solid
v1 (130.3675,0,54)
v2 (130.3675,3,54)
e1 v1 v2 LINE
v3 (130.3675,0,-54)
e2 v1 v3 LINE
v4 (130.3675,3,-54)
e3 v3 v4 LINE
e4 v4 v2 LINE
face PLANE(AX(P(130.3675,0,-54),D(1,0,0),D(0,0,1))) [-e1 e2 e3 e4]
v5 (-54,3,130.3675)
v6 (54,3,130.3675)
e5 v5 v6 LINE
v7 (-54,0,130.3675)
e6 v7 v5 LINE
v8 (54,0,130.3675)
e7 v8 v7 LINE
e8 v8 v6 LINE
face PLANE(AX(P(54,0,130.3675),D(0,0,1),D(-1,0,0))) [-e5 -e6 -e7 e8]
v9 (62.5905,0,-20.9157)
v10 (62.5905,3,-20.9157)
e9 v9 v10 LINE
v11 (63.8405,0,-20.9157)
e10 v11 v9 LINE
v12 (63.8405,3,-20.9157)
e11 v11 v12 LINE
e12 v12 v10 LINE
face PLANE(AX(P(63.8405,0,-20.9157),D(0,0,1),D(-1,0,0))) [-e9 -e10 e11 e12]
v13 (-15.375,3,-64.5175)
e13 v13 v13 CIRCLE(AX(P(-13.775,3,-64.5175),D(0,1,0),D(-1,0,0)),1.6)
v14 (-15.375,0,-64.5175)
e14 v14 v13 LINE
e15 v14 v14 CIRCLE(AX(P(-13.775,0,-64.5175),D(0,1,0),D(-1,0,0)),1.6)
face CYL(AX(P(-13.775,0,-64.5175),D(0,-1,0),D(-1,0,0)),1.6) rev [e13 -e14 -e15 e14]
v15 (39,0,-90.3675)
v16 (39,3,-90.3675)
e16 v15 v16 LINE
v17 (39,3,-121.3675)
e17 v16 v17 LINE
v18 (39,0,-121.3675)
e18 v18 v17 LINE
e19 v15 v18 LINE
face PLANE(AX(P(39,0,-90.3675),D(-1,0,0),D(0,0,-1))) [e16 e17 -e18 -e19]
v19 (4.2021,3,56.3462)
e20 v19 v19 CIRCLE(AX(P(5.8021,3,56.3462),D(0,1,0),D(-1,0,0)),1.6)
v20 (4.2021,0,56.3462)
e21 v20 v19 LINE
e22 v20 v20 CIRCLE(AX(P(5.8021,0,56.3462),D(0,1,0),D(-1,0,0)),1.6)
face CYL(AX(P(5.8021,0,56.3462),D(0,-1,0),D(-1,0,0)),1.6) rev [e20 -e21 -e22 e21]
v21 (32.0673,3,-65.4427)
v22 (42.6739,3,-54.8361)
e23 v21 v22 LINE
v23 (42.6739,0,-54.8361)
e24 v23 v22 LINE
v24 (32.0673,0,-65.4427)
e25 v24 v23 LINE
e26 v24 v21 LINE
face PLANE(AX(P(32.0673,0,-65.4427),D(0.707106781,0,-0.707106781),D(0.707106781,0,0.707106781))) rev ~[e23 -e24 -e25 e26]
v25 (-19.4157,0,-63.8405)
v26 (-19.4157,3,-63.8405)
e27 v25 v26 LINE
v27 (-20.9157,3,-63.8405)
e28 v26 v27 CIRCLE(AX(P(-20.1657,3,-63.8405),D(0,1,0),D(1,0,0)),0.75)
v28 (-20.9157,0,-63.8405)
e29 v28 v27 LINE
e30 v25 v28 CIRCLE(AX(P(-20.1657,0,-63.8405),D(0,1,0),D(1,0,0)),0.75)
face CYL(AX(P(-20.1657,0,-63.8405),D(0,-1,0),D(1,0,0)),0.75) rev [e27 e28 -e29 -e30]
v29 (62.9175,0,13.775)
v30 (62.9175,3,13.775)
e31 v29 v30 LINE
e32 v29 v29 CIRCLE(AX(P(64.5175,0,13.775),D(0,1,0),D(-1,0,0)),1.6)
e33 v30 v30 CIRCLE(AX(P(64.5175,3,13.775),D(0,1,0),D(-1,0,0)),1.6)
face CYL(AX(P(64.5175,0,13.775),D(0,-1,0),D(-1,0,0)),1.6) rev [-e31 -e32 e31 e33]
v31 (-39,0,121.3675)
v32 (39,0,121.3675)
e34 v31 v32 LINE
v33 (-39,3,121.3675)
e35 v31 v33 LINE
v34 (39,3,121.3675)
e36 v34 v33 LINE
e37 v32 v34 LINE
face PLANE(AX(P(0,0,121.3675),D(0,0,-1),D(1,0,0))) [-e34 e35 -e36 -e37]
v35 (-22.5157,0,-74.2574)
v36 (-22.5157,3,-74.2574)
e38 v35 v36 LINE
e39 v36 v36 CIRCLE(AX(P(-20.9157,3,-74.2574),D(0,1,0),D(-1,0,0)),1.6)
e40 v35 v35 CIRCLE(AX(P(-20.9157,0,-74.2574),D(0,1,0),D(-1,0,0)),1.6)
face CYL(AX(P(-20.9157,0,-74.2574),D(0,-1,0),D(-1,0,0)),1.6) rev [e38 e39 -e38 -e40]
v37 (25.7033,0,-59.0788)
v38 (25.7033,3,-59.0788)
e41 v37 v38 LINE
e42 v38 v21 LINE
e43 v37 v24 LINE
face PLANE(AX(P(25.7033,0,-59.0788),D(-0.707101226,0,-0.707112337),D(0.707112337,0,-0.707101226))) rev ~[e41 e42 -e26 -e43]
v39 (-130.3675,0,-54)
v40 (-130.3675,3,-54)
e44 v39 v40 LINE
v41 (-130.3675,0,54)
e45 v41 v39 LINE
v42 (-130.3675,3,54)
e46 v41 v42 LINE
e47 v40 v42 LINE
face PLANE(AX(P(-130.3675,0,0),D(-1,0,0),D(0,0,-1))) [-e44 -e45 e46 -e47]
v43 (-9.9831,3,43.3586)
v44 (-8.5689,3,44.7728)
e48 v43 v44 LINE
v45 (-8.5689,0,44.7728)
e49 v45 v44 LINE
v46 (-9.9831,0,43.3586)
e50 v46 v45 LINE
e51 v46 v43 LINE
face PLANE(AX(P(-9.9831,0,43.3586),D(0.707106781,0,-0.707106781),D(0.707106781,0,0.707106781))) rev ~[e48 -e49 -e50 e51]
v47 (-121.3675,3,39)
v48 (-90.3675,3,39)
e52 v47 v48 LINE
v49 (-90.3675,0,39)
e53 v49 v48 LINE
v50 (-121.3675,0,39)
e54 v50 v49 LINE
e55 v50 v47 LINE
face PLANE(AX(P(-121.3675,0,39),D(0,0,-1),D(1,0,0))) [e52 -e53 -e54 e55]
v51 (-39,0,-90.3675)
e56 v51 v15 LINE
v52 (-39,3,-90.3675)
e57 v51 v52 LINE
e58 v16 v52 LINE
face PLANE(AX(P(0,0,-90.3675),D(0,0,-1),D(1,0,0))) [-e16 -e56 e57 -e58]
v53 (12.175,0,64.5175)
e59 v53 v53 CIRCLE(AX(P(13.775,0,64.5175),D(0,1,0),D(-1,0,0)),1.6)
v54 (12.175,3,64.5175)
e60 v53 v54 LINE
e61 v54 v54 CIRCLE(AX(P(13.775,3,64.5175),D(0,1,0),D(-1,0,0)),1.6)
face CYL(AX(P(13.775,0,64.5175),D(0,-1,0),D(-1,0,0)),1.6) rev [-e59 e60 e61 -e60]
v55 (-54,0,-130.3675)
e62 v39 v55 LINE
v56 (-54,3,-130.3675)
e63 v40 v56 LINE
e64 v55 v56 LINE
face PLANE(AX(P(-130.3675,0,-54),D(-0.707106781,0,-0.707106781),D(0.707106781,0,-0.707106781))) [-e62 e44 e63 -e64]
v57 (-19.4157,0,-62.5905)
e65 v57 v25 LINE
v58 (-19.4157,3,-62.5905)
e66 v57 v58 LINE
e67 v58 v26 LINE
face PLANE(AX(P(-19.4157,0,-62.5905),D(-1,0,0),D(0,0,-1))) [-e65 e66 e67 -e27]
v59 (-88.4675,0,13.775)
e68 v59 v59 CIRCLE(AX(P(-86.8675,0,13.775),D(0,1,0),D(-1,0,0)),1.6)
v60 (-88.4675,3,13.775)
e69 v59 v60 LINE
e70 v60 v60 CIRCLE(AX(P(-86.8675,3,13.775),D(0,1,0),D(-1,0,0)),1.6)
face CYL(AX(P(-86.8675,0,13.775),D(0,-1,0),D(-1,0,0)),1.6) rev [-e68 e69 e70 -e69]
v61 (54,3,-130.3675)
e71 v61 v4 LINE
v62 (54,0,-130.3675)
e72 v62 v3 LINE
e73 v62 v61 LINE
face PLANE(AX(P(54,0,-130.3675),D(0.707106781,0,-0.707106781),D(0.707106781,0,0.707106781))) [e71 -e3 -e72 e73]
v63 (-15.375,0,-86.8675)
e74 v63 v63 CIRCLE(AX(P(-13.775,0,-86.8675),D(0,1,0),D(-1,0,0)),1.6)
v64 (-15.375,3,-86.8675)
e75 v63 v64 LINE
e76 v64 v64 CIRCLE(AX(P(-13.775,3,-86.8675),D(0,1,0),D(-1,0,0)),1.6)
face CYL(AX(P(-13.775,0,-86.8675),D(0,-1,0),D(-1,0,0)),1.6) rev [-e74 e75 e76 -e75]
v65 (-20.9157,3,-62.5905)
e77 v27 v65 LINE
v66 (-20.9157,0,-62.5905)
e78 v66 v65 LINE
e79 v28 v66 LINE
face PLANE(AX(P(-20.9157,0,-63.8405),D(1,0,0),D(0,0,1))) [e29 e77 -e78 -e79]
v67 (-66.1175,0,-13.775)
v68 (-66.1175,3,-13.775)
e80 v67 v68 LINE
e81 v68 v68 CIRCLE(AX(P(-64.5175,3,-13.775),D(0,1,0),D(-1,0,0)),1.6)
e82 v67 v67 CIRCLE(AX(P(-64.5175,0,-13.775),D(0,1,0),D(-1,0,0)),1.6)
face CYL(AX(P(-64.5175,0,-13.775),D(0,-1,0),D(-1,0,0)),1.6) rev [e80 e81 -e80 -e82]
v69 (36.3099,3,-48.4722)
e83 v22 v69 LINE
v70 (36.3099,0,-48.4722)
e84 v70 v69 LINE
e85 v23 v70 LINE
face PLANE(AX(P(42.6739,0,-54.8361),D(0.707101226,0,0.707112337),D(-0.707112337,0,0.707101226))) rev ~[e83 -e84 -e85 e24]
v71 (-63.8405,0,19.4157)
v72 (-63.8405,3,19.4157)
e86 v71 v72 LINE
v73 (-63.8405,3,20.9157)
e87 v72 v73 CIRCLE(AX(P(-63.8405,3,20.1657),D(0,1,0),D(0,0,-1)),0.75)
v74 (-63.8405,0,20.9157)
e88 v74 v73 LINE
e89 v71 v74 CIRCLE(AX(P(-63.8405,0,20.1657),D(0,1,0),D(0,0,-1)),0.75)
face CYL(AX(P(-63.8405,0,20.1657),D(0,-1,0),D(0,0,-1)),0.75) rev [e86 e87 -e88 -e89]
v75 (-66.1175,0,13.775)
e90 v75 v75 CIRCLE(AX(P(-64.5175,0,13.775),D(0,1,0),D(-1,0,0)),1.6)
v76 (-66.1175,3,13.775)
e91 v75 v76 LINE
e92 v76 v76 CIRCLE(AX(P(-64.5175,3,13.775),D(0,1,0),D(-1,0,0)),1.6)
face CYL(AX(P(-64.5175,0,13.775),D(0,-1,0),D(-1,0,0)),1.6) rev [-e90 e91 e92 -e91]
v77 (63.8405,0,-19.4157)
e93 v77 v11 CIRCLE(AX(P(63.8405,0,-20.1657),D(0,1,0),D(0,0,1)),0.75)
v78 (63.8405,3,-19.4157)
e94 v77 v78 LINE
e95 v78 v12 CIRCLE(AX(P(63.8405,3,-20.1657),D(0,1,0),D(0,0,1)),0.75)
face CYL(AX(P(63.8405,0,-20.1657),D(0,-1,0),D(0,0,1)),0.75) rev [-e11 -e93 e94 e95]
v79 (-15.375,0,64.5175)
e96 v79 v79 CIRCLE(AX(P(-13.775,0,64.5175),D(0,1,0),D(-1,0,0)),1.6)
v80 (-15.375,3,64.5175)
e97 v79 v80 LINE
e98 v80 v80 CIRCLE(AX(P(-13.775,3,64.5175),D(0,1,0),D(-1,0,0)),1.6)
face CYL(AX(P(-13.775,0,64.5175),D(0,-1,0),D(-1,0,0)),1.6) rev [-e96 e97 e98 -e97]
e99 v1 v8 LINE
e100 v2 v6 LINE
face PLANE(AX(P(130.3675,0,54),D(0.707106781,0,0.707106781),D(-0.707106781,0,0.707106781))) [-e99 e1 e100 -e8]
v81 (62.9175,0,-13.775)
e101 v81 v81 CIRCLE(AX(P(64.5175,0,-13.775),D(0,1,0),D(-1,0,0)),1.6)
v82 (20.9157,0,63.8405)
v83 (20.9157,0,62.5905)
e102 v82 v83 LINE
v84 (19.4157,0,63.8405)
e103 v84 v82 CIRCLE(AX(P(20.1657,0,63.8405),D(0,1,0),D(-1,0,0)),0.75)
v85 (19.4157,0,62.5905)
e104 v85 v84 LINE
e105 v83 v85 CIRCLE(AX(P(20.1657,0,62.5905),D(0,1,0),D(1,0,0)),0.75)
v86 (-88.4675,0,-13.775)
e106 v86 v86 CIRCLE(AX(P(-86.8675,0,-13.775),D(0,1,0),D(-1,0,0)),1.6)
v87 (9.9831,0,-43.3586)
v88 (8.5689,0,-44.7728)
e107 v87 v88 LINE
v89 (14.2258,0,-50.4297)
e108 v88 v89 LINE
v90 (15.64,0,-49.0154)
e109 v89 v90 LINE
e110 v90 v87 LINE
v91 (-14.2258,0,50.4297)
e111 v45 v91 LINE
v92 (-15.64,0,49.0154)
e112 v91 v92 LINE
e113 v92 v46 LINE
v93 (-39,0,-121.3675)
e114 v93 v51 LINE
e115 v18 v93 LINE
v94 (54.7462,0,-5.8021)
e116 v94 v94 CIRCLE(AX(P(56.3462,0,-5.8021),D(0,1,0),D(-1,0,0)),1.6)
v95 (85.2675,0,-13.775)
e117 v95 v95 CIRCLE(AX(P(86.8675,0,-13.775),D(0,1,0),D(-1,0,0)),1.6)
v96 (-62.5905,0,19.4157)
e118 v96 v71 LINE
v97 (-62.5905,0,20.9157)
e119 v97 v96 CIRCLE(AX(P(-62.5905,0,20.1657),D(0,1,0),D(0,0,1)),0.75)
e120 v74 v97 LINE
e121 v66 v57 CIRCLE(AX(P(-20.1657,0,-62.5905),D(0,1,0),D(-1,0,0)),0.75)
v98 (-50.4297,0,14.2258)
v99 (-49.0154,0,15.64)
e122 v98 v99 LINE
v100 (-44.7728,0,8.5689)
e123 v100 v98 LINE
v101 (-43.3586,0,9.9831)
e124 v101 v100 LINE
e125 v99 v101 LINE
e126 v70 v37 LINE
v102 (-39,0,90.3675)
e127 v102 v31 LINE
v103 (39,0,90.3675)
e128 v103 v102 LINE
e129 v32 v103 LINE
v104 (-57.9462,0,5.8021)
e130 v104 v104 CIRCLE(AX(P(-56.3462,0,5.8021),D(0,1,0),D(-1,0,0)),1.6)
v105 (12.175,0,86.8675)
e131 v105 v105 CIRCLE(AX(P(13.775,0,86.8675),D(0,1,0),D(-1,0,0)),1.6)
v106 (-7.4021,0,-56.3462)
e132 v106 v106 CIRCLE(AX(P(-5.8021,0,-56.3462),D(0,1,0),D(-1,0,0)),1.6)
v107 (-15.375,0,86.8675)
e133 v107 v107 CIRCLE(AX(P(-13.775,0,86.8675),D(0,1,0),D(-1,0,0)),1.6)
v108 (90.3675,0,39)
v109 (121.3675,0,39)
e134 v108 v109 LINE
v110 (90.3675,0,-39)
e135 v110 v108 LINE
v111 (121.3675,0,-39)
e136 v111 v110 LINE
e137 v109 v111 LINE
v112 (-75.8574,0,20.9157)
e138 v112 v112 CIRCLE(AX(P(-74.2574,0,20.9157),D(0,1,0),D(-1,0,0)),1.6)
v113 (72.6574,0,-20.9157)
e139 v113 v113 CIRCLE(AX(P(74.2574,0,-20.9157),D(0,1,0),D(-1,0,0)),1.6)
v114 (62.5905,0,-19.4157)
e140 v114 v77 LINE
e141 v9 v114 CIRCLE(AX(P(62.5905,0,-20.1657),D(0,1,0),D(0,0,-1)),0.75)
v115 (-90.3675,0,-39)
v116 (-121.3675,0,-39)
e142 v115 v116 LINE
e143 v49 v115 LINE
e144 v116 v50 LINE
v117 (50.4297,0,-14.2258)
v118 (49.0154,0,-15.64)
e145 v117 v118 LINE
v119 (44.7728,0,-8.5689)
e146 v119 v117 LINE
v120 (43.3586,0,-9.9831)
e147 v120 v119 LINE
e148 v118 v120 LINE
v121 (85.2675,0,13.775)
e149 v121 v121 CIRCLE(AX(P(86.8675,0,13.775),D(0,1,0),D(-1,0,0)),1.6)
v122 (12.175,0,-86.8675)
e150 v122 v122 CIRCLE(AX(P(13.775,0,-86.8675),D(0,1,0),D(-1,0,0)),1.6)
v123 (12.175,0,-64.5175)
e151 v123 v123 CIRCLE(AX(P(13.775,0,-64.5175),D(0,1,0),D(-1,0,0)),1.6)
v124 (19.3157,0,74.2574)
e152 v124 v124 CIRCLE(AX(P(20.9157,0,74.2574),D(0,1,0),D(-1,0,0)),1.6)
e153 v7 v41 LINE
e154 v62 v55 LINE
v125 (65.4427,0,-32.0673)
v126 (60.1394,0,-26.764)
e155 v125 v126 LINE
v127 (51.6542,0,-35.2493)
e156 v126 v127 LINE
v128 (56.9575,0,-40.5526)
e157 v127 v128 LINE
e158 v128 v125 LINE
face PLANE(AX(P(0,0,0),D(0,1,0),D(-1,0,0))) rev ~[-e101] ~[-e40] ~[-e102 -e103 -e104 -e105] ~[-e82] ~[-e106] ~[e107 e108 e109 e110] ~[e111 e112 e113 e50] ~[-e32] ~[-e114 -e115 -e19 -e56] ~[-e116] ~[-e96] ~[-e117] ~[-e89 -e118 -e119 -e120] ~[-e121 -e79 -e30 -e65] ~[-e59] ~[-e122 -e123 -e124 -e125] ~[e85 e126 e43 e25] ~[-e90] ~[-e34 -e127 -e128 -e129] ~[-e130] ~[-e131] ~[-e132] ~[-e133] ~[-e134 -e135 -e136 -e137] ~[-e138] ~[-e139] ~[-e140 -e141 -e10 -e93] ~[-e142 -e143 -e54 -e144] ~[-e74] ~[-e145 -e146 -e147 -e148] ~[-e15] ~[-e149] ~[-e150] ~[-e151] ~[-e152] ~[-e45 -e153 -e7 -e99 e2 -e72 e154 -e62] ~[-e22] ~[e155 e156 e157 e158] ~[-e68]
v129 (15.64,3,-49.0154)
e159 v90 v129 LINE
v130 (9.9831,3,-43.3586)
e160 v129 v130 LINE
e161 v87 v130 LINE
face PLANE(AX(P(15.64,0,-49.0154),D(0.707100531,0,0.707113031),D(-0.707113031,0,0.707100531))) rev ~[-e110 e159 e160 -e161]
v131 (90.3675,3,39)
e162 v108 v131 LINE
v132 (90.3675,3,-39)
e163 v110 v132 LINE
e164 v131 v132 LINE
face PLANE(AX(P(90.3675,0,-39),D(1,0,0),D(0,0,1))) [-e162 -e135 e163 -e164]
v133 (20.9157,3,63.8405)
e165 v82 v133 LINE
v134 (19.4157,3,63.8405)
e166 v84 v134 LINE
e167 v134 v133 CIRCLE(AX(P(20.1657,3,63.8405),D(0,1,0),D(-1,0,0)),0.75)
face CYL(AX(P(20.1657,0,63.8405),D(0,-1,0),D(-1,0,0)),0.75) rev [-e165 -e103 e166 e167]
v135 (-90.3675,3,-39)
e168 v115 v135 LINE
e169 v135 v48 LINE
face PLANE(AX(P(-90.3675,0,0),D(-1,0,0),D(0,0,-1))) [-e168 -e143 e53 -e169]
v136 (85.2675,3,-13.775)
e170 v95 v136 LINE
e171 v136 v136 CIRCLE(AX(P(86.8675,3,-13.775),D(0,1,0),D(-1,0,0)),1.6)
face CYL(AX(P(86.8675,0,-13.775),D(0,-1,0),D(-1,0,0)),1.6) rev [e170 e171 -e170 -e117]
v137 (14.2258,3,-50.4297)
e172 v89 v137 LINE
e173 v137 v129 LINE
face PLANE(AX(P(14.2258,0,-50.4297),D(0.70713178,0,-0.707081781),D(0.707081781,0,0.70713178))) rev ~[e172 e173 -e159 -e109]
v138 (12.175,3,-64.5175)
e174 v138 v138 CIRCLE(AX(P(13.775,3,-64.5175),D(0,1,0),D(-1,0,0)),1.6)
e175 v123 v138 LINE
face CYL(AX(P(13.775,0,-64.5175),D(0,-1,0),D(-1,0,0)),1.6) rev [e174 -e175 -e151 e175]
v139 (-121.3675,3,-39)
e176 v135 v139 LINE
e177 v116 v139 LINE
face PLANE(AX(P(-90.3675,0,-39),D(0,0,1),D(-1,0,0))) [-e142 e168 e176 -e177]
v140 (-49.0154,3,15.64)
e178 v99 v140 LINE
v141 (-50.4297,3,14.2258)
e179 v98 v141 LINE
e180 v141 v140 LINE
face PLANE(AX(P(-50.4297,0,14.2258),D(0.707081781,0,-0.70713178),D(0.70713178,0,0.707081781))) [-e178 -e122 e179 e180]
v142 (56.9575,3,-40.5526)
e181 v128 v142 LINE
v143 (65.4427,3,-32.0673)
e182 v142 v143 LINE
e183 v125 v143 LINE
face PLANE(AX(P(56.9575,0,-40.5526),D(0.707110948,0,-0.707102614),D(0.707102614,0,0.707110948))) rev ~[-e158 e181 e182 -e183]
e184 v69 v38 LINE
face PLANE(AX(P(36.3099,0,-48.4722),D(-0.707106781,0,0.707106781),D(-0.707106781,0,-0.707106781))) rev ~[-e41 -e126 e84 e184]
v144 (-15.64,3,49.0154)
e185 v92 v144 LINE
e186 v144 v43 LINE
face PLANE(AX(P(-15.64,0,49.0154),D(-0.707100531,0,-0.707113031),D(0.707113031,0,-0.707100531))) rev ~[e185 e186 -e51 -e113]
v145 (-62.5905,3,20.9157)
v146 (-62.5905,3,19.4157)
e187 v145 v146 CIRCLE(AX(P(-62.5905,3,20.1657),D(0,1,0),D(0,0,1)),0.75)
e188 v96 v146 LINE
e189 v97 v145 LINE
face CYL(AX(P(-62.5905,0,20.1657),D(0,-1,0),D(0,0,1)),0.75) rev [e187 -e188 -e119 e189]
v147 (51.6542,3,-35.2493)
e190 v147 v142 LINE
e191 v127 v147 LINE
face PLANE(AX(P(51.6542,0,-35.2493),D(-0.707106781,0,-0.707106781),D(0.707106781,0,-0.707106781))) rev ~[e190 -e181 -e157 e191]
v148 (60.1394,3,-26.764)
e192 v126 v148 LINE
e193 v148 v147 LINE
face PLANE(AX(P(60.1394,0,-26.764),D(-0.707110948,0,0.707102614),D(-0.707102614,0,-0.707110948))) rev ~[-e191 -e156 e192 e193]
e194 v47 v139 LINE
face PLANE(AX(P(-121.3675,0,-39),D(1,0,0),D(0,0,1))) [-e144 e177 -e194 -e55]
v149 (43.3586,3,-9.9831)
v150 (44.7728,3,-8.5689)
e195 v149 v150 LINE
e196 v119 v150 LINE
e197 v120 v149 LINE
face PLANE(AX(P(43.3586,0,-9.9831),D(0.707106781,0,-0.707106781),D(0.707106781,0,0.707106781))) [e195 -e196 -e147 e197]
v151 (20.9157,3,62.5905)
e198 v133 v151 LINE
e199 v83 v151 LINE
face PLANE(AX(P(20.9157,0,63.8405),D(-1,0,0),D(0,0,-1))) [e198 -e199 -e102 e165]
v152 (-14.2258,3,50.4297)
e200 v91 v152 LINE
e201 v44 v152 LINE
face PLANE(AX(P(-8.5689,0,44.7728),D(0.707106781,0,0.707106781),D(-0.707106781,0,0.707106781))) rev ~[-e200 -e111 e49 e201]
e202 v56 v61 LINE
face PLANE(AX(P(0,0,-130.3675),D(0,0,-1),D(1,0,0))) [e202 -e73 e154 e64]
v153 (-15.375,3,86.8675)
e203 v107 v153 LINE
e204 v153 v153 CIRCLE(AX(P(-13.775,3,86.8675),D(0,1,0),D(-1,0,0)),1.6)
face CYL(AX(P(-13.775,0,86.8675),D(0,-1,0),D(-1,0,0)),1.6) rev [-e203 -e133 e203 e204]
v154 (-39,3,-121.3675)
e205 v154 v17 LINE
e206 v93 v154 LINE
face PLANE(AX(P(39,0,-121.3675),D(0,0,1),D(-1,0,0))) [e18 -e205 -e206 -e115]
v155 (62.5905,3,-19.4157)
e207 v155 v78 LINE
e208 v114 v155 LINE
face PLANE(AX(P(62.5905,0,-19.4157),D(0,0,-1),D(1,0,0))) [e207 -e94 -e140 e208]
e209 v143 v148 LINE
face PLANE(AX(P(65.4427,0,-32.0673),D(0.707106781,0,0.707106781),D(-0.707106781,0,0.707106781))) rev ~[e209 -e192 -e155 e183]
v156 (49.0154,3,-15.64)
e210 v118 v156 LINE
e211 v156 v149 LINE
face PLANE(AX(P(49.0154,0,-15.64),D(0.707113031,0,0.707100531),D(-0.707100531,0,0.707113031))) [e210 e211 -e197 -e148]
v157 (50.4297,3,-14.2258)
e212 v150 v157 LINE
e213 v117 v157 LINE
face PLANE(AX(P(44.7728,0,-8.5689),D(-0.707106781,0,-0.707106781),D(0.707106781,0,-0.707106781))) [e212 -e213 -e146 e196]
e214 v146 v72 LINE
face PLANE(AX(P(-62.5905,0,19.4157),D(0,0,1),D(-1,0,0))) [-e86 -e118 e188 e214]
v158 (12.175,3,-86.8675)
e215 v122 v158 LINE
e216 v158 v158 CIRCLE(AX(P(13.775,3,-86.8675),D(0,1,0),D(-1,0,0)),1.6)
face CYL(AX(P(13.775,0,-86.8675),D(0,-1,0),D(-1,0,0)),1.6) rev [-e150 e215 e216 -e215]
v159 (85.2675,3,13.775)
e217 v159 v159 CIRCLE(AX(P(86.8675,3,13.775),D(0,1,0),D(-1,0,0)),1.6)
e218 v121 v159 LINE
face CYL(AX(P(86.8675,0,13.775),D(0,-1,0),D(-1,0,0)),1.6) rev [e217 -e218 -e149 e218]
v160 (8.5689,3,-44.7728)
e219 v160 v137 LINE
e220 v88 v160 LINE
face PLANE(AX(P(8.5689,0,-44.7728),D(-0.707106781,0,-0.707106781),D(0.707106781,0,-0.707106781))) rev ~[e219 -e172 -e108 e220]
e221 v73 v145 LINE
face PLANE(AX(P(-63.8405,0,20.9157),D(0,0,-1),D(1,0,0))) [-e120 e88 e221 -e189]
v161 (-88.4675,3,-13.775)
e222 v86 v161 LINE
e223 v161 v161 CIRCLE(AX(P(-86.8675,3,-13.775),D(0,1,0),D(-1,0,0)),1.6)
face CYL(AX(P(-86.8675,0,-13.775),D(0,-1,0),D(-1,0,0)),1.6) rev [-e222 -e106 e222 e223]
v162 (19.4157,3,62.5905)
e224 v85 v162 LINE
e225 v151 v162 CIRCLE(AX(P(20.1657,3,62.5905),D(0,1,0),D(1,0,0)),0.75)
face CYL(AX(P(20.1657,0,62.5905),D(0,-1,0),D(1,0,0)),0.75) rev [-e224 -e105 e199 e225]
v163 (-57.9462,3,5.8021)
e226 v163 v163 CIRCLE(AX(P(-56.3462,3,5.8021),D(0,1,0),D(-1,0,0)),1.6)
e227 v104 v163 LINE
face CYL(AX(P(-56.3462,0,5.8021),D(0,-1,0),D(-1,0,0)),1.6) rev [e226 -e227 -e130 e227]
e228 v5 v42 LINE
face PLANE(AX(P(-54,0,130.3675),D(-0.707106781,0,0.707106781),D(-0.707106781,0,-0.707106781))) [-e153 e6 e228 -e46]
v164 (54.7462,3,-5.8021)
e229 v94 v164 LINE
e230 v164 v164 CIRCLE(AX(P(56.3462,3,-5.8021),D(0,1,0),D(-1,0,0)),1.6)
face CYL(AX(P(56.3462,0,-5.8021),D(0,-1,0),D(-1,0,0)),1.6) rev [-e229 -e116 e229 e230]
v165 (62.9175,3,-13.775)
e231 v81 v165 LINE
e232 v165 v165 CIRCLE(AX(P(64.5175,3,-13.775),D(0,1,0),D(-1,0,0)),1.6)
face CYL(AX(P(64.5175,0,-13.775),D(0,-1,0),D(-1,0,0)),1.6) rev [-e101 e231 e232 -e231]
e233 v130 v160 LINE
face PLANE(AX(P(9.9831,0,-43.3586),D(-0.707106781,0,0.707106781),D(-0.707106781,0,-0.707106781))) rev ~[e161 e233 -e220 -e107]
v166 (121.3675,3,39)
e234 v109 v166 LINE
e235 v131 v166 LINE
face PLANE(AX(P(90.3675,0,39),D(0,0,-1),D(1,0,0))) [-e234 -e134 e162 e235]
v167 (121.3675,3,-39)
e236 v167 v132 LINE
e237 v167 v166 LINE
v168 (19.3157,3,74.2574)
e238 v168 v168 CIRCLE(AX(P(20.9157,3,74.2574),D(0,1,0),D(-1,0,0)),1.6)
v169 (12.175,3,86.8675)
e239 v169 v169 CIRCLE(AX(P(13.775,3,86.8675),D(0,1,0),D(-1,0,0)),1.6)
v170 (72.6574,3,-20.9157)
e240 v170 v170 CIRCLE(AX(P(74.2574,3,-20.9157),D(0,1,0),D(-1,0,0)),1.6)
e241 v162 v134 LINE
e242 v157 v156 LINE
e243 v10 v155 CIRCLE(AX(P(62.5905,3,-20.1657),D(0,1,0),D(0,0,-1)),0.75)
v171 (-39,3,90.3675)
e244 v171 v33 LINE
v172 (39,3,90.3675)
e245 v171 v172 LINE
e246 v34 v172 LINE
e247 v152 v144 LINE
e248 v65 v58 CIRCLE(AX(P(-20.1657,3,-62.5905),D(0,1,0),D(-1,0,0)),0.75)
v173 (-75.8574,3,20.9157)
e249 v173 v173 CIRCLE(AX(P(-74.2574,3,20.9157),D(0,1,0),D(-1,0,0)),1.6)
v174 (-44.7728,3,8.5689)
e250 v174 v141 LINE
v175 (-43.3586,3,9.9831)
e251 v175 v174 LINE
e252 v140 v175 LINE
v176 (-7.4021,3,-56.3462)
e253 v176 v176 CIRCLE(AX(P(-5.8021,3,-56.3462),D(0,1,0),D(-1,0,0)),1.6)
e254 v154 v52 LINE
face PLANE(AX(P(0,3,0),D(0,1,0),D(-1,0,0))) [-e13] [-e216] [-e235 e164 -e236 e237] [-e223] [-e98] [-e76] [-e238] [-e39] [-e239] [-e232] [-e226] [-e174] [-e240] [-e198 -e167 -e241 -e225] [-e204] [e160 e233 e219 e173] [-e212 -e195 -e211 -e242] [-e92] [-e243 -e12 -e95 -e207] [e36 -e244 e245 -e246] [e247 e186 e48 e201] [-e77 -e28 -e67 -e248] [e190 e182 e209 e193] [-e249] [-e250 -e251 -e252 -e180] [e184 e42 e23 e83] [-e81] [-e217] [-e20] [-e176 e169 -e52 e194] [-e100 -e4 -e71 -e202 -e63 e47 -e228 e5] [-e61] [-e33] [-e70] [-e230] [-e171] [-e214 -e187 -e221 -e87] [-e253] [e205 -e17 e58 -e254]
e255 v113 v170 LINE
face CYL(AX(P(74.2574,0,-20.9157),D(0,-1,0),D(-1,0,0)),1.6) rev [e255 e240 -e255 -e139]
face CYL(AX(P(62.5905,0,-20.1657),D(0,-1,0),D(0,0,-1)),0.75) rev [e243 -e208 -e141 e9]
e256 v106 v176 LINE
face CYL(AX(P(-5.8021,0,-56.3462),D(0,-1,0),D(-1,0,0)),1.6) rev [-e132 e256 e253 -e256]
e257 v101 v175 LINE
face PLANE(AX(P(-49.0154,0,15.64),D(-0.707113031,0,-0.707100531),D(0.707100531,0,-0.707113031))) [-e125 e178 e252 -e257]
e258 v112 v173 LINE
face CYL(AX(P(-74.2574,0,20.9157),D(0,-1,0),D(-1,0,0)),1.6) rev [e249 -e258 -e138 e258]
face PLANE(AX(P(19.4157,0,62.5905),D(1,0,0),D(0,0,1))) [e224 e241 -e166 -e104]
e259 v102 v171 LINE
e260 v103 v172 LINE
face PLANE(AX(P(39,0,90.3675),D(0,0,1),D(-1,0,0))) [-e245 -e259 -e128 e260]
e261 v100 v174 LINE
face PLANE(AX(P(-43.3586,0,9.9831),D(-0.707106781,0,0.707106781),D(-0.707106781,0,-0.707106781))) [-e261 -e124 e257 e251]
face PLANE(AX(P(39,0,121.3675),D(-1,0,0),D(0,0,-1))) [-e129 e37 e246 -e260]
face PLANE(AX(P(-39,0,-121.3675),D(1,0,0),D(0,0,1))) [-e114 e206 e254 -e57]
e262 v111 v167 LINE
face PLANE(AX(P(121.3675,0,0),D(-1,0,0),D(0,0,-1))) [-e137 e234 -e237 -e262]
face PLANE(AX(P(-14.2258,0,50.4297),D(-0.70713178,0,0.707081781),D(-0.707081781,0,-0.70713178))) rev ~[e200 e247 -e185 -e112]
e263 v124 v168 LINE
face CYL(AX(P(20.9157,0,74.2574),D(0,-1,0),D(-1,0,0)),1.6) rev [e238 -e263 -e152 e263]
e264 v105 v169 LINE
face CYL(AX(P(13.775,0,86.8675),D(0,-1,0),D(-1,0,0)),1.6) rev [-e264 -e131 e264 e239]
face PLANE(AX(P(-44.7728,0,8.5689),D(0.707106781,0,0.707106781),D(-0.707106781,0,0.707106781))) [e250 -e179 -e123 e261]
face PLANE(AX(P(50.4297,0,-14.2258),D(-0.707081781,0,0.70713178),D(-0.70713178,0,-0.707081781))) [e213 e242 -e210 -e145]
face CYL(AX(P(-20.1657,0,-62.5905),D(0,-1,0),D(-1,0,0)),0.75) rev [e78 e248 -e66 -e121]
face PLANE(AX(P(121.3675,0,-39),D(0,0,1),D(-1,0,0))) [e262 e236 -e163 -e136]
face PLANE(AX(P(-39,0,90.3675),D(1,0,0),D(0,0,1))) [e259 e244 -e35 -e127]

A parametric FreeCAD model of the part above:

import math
import FreeCAD as App
import Part
import Sketcher
Q = App.Units.Quantity

doc = App.newDocument("Part")
params = doc.addObject("Spreadsheet::Sheet", "Params")
for row, (alias, value) in enumerate([
    ("sketch1_diameter", "3.2 mm"),
    ("sketch1_width", "31 mm"),
    ("sketch1_width2", "78 mm"),
    ("sketch1_radius", "0.75 mm"),
    ("sketch1_length", "9 mm"),
    ("pad1_length", "3 mm"),
], start=1):
    params.set(f"A{row}", alias)
    params.set(f"B{row}", "=" + value)
    params.setAlias(f"B{row}", alias)

body = doc.addObject("PartDesign::Body", "Body")

sketch1 = body.newObject("Sketcher::SketchObject", "Sketch")
sketch1.AttachmentSupport = (doc.getObject("XZ_Plane"), [""])
sketch1.MapMode = "FlatFace"
sketch1.addGeometry([
    Part.LineSegment(App.Vector(130.4, -54, 0), App.Vector(54, -130.4, 0)),
    Part.LineSegment(App.Vector(54, -130.4, 0), App.Vector(-54, -130.4, 0)),
    Part.LineSegment(App.Vector(-54, -130.4, 0), App.Vector(-130.4, -54, 0)),
    Part.LineSegment(App.Vector(-130.4, -54, 0), App.Vector(-130.4, 54, 0)),
    Part.LineSegment(App.Vector(-130.4, 54, 0), App.Vector(-54, 130.4, 0)),
    Part.LineSegment(App.Vector(-54, 130.4, 0), App.Vector(54, 130.4, 0)),
    Part.LineSegment(App.Vector(54, 130.4, 0), App.Vector(130.4, 54, 0)),
    Part.LineSegment(App.Vector(130.4, 54, 0), App.Vector(130.4, -54, 0)),
    Part.LineSegment(App.Vector(121.4, -39, 0), App.Vector(121.4, 39, 0)),
    Part.LineSegment(App.Vector(121.4, 39, 0), App.Vector(90.4, 39, 0)),
    Part.LineSegment(App.Vector(90.4, 39, 0), App.Vector(90.4, -39, 0)),
    Part.LineSegment(App.Vector(90.4, -39, 0), App.Vector(121.4, -39, 0)),
    Part.LineSegment(App.Vector(39, -90.4, 0), App.Vector(-39, -90.4, 0)),
    Part.LineSegment(App.Vector(-39, -90.4, 0), App.Vector(-39, -121.4, 0)),
    Part.LineSegment(App.Vector(-39, -121.4, 0), App.Vector(39, -121.4, 0)),
    Part.LineSegment(App.Vector(39, -121.4, 0), App.Vector(39, -90.4, 0)),
    Part.Circle(App.Vector(13.8, -86.9, 0), App.Vector(0, 0, 1), 1.6),
    Part.Circle(App.Vector(74.3, -20.9, 0), App.Vector(0, 0, 1), 1.6),
    Part.Circle(App.Vector(86.9, -13.8, 0), App.Vector(0, 0, 1), 1.6),
    Part.LineSegment(App.Vector(25.7, -59.1, 0), App.Vector(32.1, -65.4, 0)),
    Part.LineSegment(App.Vector(32.1, -65.4, 0), App.Vector(42.7, -54.8, 0)),
    Part.LineSegment(App.Vector(42.7, -54.8, 0), App.Vector(36.3, -48.5, 0)),
    Part.LineSegment(App.Vector(36.3, -48.5, 0), App.Vector(25.7, -59.1, 0)),
    Part.LineSegment(App.Vector(51.7, -35.2, 0), App.Vector(57, -40.6, 0)),
    Part.LineSegment(App.Vector(57, -40.6, 0), App.Vector(65.4, -32.1, 0)),
    Part.LineSegment(App.Vector(65.4, -32.1, 0), App.Vector(60.1, -26.8, 0)),
    Part.LineSegment(App.Vector(60.1, -26.8, 0), App.Vector(51.7, -35.2, 0)),
    Part.Circle(App.Vector(13.8, -64.5, 0), App.Vector(0, 0, 1), 1.6),
    Part.LineSegment(App.Vector(8.6, -44.8, 0), App.Vector(14.2, -50.4, 0)),
    Part.LineSegment(App.Vector(14.2, -50.4, 0), App.Vector(15.6, -49, 0)),
    Part.LineSegment(App.Vector(15.6, -49, 0), App.Vector(10, -43.4, 0)),
    Part.LineSegment(App.Vector(10, -43.4, 0), App.Vector(8.6, -44.8, 0)),
    Part.ArcOfCircle(Part.Circle(App.Vector(62.6, -20.2, 0), App.Vector(0, 0, 1), 0.8), math.radians(90), math.radians(270)),
    Part.LineSegment(App.Vector(62.6, -20.9, 0), App.Vector(63.8, -20.9, 0)),
    Part.ArcOfCircle(Part.Circle(App.Vector(63.8, -20.2, 0), App.Vector(0, 0, 1), 0.8), math.radians(-90), math.radians(90)),
    Part.LineSegment(App.Vector(63.8, -19.4, 0), App.Vector(62.6, -19.4, 0)),
    Part.Circle(App.Vector(64.5, -13.8, 0), App.Vector(0, 0, 1), 1.6),
    Part.Circle(App.Vector(56.3, -5.8, 0), App.Vector(0, 0, 1), 1.6),
    Part.LineSegment(App.Vector(49, -15.6, 0), App.Vector(50.4, -14.2, 0)),
    Part.LineSegment(App.Vector(50.4, -14.2, 0), App.Vector(44.8, -8.6, 0)),
    Part.LineSegment(App.Vector(44.8, -8.6, 0), App.Vector(43.4, -10, 0)),
    Part.LineSegment(App.Vector(43.4, -10, 0), App.Vector(49, -15.6, 0)),
    Part.LineSegment(App.Vector(39, 121.4, 0), App.Vector(-39, 121.4, 0)),
    Part.LineSegment(App.Vector(-39, 121.4, 0), App.Vector(-39, 90.4, 0)),
    Part.LineSegment(App.Vector(-39, 90.4, 0), App.Vector(39, 90.4, 0)),
    Part.LineSegment(App.Vector(39, 90.4, 0), App.Vector(39, 121.4, 0)),
    Part.Circle(App.Vector(13.8, 64.5, 0), App.Vector(0, 0, 1), 1.6),
    Part.Circle(App.Vector(20.9, 74.3, 0), App.Vector(0, 0, 1), 1.6),
    Part.Circle(App.Vector(13.8, 86.9, 0), App.Vector(0, 0, 1), 1.6),
    Part.Circle(App.Vector(86.9, 13.8, 0), App.Vector(0, 0, 1), 1.6),
    Part.Circle(App.Vector(64.5, 13.8, 0), App.Vector(0, 0, 1), 1.6),
    Part.ArcOfCircle(Part.Circle(App.Vector(20.2, 62.6, 0), App.Vector(0, 0, 1), 0.8), math.radians(180), math.radians(360)),
    Part.LineSegment(App.Vector(20.9, 62.6, 0), App.Vector(20.9, 63.8, 0)),
    Part.ArcOfCircle(Part.Circle(App.Vector(20.2, 63.8, 0), App.Vector(0, 0, 1), 0.8), math.radians(0), math.radians(180)),
    Part.LineSegment(App.Vector(19.4, 63.8, 0), App.Vector(19.4, 62.6, 0)),
    Part.Circle(App.Vector(5.8, 56.3, 0), App.Vector(0, 0, 1), 1.6),
    Part.ArcOfCircle(Part.Circle(App.Vector(-20.2, -62.6, 0), App.Vector(0, 0, 1), 0.8), math.radians(0), math.radians(180)),
    Part.LineSegment(App.Vector(-20.9, -62.6, 0), App.Vector(-20.9, -63.8, 0)),
    Part.ArcOfCircle(Part.Circle(App.Vector(-20.2, -63.8, 0), App.Vector(0, 0, 1), 0.8), math.radians(180), math.radians(360)),
    Part.LineSegment(App.Vector(-19.4, -63.8, 0), App.Vector(-19.4, -62.6, 0)),
    Part.Circle(App.Vector(-64.5, -13.8, 0), App.Vector(0, 0, 1), 1.6),
    Part.Circle(App.Vector(-86.9, -13.8, 0), App.Vector(0, 0, 1), 1.6),
    Part.LineSegment(App.Vector(-90.4, -39, 0), App.Vector(-90.4, 39, 0)),
    Part.LineSegment(App.Vector(-90.4, 39, 0), App.Vector(-121.4, 39, 0)),
    Part.LineSegment(App.Vector(-121.4, 39, 0), App.Vector(-121.4, -39, 0)),
    Part.LineSegment(App.Vector(-121.4, -39, 0), App.Vector(-90.4, -39, 0)),
    Part.Circle(App.Vector(-13.8, -86.9, 0), App.Vector(0, 0, 1), 1.6),
    Part.Circle(App.Vector(-20.9, -74.3, 0), App.Vector(0, 0, 1), 1.6),
    Part.Circle(App.Vector(-13.8, -64.5, 0), App.Vector(0, 0, 1), 1.6),
    Part.Circle(App.Vector(-5.8, -56.3, 0), App.Vector(0, 0, 1), 1.6),
    Part.LineSegment(App.Vector(-8.6, 44.8, 0), App.Vector(-14.2, 50.4, 0)),
    Part.LineSegment(App.Vector(-14.2, 50.4, 0), App.Vector(-15.6, 49, 0)),
    Part.LineSegment(App.Vector(-15.6, 49, 0), App.Vector(-10, 43.4, 0)),
    Part.LineSegment(App.Vector(-10, 43.4, 0), App.Vector(-8.6, 44.8, 0)),
    Part.Circle(App.Vector(-13.8, 64.5, 0), App.Vector(0, 0, 1), 1.6),
    Part.Circle(App.Vector(-86.9, 13.8, 0), App.Vector(0, 0, 1), 1.6),
    Part.Circle(App.Vector(-74.3, 20.9, 0), App.Vector(0, 0, 1), 1.6),
    Part.Circle(App.Vector(-13.8, 86.9, 0), App.Vector(0, 0, 1), 1.6),
    Part.LineSegment(App.Vector(-49, 15.6, 0), App.Vector(-50.4, 14.2, 0)),
    Part.LineSegment(App.Vector(-50.4, 14.2, 0), App.Vector(-44.8, 8.6, 0)),
    Part.LineSegment(App.Vector(-44.8, 8.6, 0), App.Vector(-43.4, 10, 0)),
    Part.LineSegment(App.Vector(-43.4, 10, 0), App.Vector(-49, 15.6, 0)),
    Part.Circle(App.Vector(-56.3, 5.8, 0), App.Vector(0, 0, 1), 1.6),
    Part.Circle(App.Vector(-64.5, 13.8, 0), App.Vector(0, 0, 1), 1.6),
    Part.ArcOfCircle(Part.Circle(App.Vector(-62.6, 20.2, 0), App.Vector(0, 0, 1), 0.8), math.radians(-90), math.radians(90)),
    Part.LineSegment(App.Vector(-62.6, 20.9, 0), App.Vector(-63.8, 20.9, 0)),
    Part.ArcOfCircle(Part.Circle(App.Vector(-63.8, 20.2, 0), App.Vector(0, 0, 1), 0.8), math.radians(90), math.radians(270)),
    Part.LineSegment(App.Vector(-63.8, 19.4, 0), App.Vector(-62.6, 19.4, 0)),
], False)
sketch1.addConstraint([
    Sketcher.Constraint("Coincident", 0, 2, 1, 1),
    Sketcher.Constraint("Coincident", 1, 2, 2, 1),
    Sketcher.Constraint("Coincident", 2, 2, 3, 1),
    Sketcher.Constraint("Coincident", 3, 2, 4, 1),
    Sketcher.Constraint("Coincident", 4, 2, 5, 1),
    Sketcher.Constraint("Coincident", 5, 2, 6, 1),
    Sketcher.Constraint("Coincident", 6, 2, 7, 1),
    Sketcher.Constraint("Coincident", 7, 2, 0, 1),
    Sketcher.Constraint("Coincident", 8, 2, 9, 1),
    Sketcher.Constraint("Coincident", 9, 2, 10, 1),
    Sketcher.Constraint("Coincident", 10, 2, 11, 1),
    Sketcher.Constraint("Coincident", 11, 2, 8, 1),
    Sketcher.Constraint("Coincident", 12, 2, 13, 1),
    Sketcher.Constraint("Coincident", 13, 2, 14, 1),
    Sketcher.Constraint("Coincident", 14, 2, 15, 1),
    Sketcher.Constraint("Coincident", 15, 2, 12, 1),
    Sketcher.Constraint("Coincident", 19, 2, 20, 1),
    Sketcher.Constraint("Coincident", 20, 2, 21, 1),
    Sketcher.Constraint("Coincident", 21, 2, 22, 1),
    Sketcher.Constraint("Coincident", 22, 2, 19, 1),
    Sketcher.Constraint("Coincident", 23, 2, 24, 1),
    Sketcher.Constraint("Coincident", 24, 2, 25, 1),
    Sketcher.Constraint("Coincident", 25, 2, 26, 1),
    Sketcher.Constraint("Coincident", 26, 2, 23, 1),
    Sketcher.Constraint("Coincident", 28, 2, 29, 1),
    Sketcher.Constraint("Coincident", 29, 2, 30, 1),
    Sketcher.Constraint("Coincident", 30, 2, 31, 1),
    Sketcher.Constraint("Coincident", 31, 2, 28, 1),
    Sketcher.Constraint("Tangent", 32, 2, 33, 1),
    Sketcher.Constraint("Tangent", 33, 2, 34, 1),
    Sketcher.Constraint("Tangent", 34, 2, 35, 1),
    Sketcher.Constraint("Tangent", 35, 2, 32, 1),
    Sketcher.Constraint("Coincident", 38, 2, 39, 1),
    Sketcher.Constraint("Coincident", 39, 2, 40, 1),
    Sketcher.Constraint("Coincident", 40, 2, 41, 1),
    Sketcher.Constraint("Coincident", 41, 2, 38, 1),
    Sketcher.Constraint("Coincident", 42, 2, 43, 1),
    Sketcher.Constraint("Coincident", 43, 2, 44, 1),
    Sketcher.Constraint("Coincident", 44, 2, 45, 1),
    Sketcher.Constraint("Coincident", 45, 2, 42, 1),
    Sketcher.Constraint("Tangent", 51, 2, 52, 1),
    Sketcher.Constraint("Tangent", 52, 2, 53, 1),
    Sketcher.Constraint("Tangent", 53, 2, 54, 1),
    Sketcher.Constraint("Tangent", 54, 2, 51, 1),
    Sketcher.Constraint("Tangent", 56, 2, 57, 1),
    Sketcher.Constraint("Tangent", 57, 2, 58, 1),
    Sketcher.Constraint("Tangent", 58, 2, 59, 1),
    Sketcher.Constraint("Tangent", 59, 2, 56, 1),
    Sketcher.Constraint("Coincident", 62, 2, 63, 1),
    Sketcher.Constraint("Coincident", 63, 2, 64, 1),
    Sketcher.Constraint("Coincident", 64, 2, 65, 1),
    Sketcher.Constraint("Coincident", 65, 2, 62, 1),
    Sketcher.Constraint("Coincident", 70, 2, 71, 1),
    Sketcher.Constraint("Coincident", 71, 2, 72, 1),
    Sketcher.Constraint("Coincident", 72, 2, 73, 1),
    Sketcher.Constraint("Coincident", 73, 2, 70, 1),
    Sketcher.Constraint("Coincident", 78, 2, 79, 1),
    Sketcher.Constraint("Coincident", 79, 2, 80, 1),
    Sketcher.Constraint("Coincident", 80, 2, 81, 1),
    Sketcher.Constraint("Coincident", 81, 2, 78, 1),
    Sketcher.Constraint("Tangent", 84, 2, 85, 1),
    Sketcher.Constraint("Tangent", 85, 2, 86, 1),
    Sketcher.Constraint("Tangent", 86, 2, 87, 1),
    Sketcher.Constraint("Tangent", 87, 2, 84, 1),
    Sketcher.Constraint("Horizontal", 1),
    Sketcher.Constraint("Vertical", 3),
    Sketcher.Constraint("Horizontal", 5),
    Sketcher.Constraint("Vertical", 7),
    Sketcher.Constraint("Vertical", 8),
    Sketcher.Constraint("Horizontal", 9),
    Sketcher.Constraint("Vertical", 10),
    Sketcher.Constraint("Horizontal", 11),
    Sketcher.Constraint("Horizontal", 12),
    Sketcher.Constraint("Vertical", 13),
    Sketcher.Constraint("Horizontal", 14),
    Sketcher.Constraint("Vertical", 15),
    Sketcher.Constraint("Horizontal", 33),
    Sketcher.Constraint("Horizontal", 35),
    Sketcher.Constraint("Horizontal", 42),
    Sketcher.Constraint("Vertical", 43),
    Sketcher.Constraint("Horizontal", 44),
    Sketcher.Constraint("Vertical", 45),
    Sketcher.Constraint("Vertical", 52),
    Sketcher.Constraint("Vertical", 54),
    Sketcher.Constraint("Vertical", 57),
    Sketcher.Constraint("Vertical", 59),
    Sketcher.Constraint("Vertical", 62),
    Sketcher.Constraint("Horizontal", 63),
    Sketcher.Constraint("Vertical", 64),
    Sketcher.Constraint("Horizontal", 65),
    Sketcher.Constraint("Horizontal", 85),
    Sketcher.Constraint("Horizontal", 87),
    Sketcher.Constraint("Equal", 16, 17),
    Sketcher.Constraint("Equal", 17, 18),
    Sketcher.Constraint("Equal", 18, 27),
    Sketcher.Constraint("Equal", 27, 36),
    Sketcher.Constraint("Equal", 36, 37),
    Sketcher.Constraint("Equal", 37, 46),
    Sketcher.Constraint("Equal", 46, 47),
    Sketcher.Constraint("Equal", 47, 48),
    Sketcher.Constraint("Equal", 48, 49),
    Sketcher.Constraint("Equal", 49, 50),
    Sketcher.Constraint("Equal", 34, 51),
    Sketcher.Constraint("Equal", 50, 55),
    Sketcher.Constraint("Equal", 53, 56),
    Sketcher.Constraint("Equal", 55, 60),
    Sketcher.Constraint("Equal", 60, 61),
    Sketcher.Constraint("Equal", 61, 66),
    Sketcher.Constraint("Equal", 66, 67),
    Sketcher.Constraint("Equal", 67, 68),
    Sketcher.Constraint("Equal", 68, 69),
    Sketcher.Constraint("Equal", 69, 74),
    Sketcher.Constraint("Equal", 74, 75),
    Sketcher.Constraint("Equal", 75, 76),
    Sketcher.Constraint("Equal", 76, 77),
    Sketcher.Constraint("Equal", 77, 82),
    Sketcher.Constraint("Equal", 82, 83),
    Sketcher.Constraint("Equal", 58, 84),
    Sketcher.Constraint("Symmetric", 51, 3, 56, 3, -1, 1),
    Sketcher.Constraint("Symmetric", 50, 3, 60, 3, -1, 1),
    Sketcher.Constraint("Symmetric", 49, 3, 61, 3, -1, 1),
    Sketcher.Constraint("Symmetric", 48, 3, 66, 3, -1, 1),
    Sketcher.Constraint("Symmetric", 47, 3, 67, 3, -1, 1),
    Sketcher.Constraint("Symmetric", 46, 3, 68, 3, -1, 1),
    Sketcher.Constraint("Symmetric", 55, 3, 69, 3, -1, 1),
    Sketcher.Constraint("Symmetric", 27, 3, 74, 3, -1, 1),
    Sketcher.Constraint("Symmetric", 18, 3, 75, 3, -1, 1),
    Sketcher.Constraint("Symmetric", 17, 3, 76, 3, -1, 1),
    Sketcher.Constraint("Symmetric", 16, 3, 77, 3, -1, 1),
    Sketcher.Constraint("Symmetric", 37, 3, 82, 3, -1, 1),
    Sketcher.Constraint("Symmetric", 36, 3, 83, 3, -1, 1),
    Sketcher.Constraint("Symmetric", 32, 3, 84, 3, -1, 1),
    Sketcher.Constraint("Symmetric", 0, 2, 4, 2, -1, 1),
    Sketcher.Constraint("Symmetric", 2, 2, 6, 2, -1, 1),
    Sketcher.Constraint("Symmetric", 14, 2, 42, 2, -1, 1),
    Sketcher.Constraint("Symmetric", 12, 2, 44, 2, -1, 1),
    Sketcher.Constraint("Symmetric", 10, 2, 62, 2, -1, 1),
    Sketcher.Constraint("Symmetric", 8, 2, 64, 2, -1, 1),
    Sketcher.Constraint("Symmetric", 28, 2, 70, 2, -1, 1),
    Sketcher.Constraint("Symmetric", 29, 2, 71, 2, -1, 1),
    Sketcher.Constraint("Symmetric", 30, 2, 72, 2, -1, 1),
    Sketcher.Constraint("Symmetric", 31, 2, 73, 2, -1, 1),
    Sketcher.Constraint("Symmetric", 38, 2, 78, 2, -1, 1),
    Sketcher.Constraint("Symmetric", 39, 2, 79, 2, -1, 1),
    Sketcher.Constraint("Symmetric", 40, 2, 80, 2, -1, 1),
    Sketcher.Constraint("Symmetric", 41, 2, 81, 2, -1, 1),
    Sketcher.Constraint("Symmetric", 36, 3, 60, 3, -2),
    Sketcher.Constraint("Symmetric", 18, 3, 61, 3, -2),
    Sketcher.Constraint("Symmetric", 16, 3, 66, 3, -2),
    Sketcher.Constraint("Symmetric", 27, 3, 68, 3, -2),
    Sketcher.Constraint("Perpendicular", 0, 2),
    Sketcher.Constraint("Perpendicular", 2, 4),
    Sketcher.Constraint("Perpendicular", 4, 6),
    Sketcher.Constraint("Parallel", 6, 19),
    Sketcher.Constraint("Perpendicular", 19, 20),
    Sketcher.Constraint("Perpendicular", 20, 21),
    Sketcher.Constraint("Perpendicular", 21, 22),
    Sketcher.Constraint("Perpendicular", 22, 23),
    Sketcher.Constraint("Perpendicular", 23, 24),
    Sketcher.Constraint("Perpendicular", 24, 25),
    Sketcher.Constraint("Perpendicular", 25, 26),
    Sketcher.Constraint("Perpendicular", 26, 28),
    Sketcher.Constraint("Perpendicular", 28, 29),
    Sketcher.Constraint("Perpendicular", 29, 30),
    Sketcher.Constraint("Perpendicular", 30, 31),
    Sketcher.Constraint("Parallel", 31, 38),
    Sketcher.Constraint("Perpendicular", 38, 39),
    Sketcher.Constraint("Perpendicular", 39, 40),
    Sketcher.Constraint("Perpendicular", 40, 41),
    Sketcher.Constraint("Horizontal", 18, 3, 36, 3),
    Sketcher.Constraint("Horizontal", 3, 2, 6, 2),
    Sketcher.Constraint("Horizontal", 17, 3, 32, 2),
    Sketcher.Constraint("Horizontal", 9, 2, 62, 2),
    Sketcher.Constraint("Vertical", 16, 3, 27, 3),
    Sketcher.Constraint("Vertical", 1, 2, 4, 2),
    Sketcher.Constraint("Vertical", 13, 2, 42, 2),
    Sketcher.Constraint("Vertical", 47, 3, 51, 2),
    Sketcher.Constraint("Equal", 35, 85),
    Sketcher.Constraint("Equal", 5, 3),
    Sketcher.Constraint("Equal", 44, 8),
    Sketcher.Constraint("Equal", 65, 13),
    Sketcher.Constraint("Equal", 87, 52),
    Sketcher.Constraint("Equal", 54, 57),
    Sketcher.Constraint("Equal", 31, 38),
    Sketcher.Constraint("Equal", 30, 39),
    Sketcher.Constraint("Diameter", 16, Q("3.2 mm")),
    Sketcher.Constraint("DistanceX", 9, 2, 9, 1, Q("31 mm")),
    Sketcher.Constraint("DistanceX", 12, 2, 12, 1, Q("78 mm")),
    Sketcher.Constraint("Radius", 32, Q("0.75 mm")),
    Sketcher.Constraint("Distance", 19, Q("9 mm")),
    Sketcher.Constraint("Distance", 20, Q("15 mm")),
    Sketcher.Constraint("Distance", 24, Q("12 mm")),
    Sketcher.Constraint("Distance", 28, Q("8 mm")),
    Sketcher.Constraint("Distance", 29, Q("2 mm")),
    Sketcher.Constraint("Distance", 23, Q("7.5 mm")),
    Sketcher.Constraint("DistanceX", 1, 2, 1, 1, Q("108 mm")),
    Sketcher.Constraint("Distance", 0, Q("108 mm")),
    Sketcher.Constraint("DistanceX", -1, 1, 16, 3, Q("13.775 mm")),
    Sketcher.Constraint("DistanceY", 18, 3, -1, 1, Q("13.775 mm")),
    Sketcher.Constraint("DistanceX", 33, 1, 33, 2, Q("1.25 mm")),
    Sketcher.Constraint("DistanceX", -1, 1, 21, 2, Q("36.31 mm")),
    Sketcher.Constraint("DistanceX", -1, 1, 29, 2, Q("15.64 mm")),
    Sketcher.Constraint("DistanceY", 41, 2, -1, 1, Q("15.64 mm")),
    Sketcher.Constraint("DistanceY", 37, 3, -1, 1, Q("5.802 mm")),
    Sketcher.Constraint("DistanceX", -1, 1, 55, 3, Q("5.802 mm")),
    Sketcher.Constraint("DistanceY", 20, 2, -1, 1, Q("54.836 mm")),
    Sketcher.Constraint("DistanceY", 25, 2, -1, 1, Q("26.764 mm")),
    Sketcher.Constraint("DistanceY", 16, 3, -1, 1, Q("86.8675 mm")),
    Sketcher.Constraint("DistanceX", -1, 1, 17, 3, Q("74.2574 mm")),
    Sketcher.Constraint("DistanceY", 17, 3, -1, 1, Q("20.9157 mm")),
    Sketcher.Constraint("DistanceX", -1, 1, 18, 3, Q("86.8675 mm")),
    Sketcher.Constraint("DistanceY", 27, 3, -1, 1, Q("64.5175 mm")),
    Sketcher.Constraint("DistanceX", -1, 1, 32, 3, Q("62.5905 mm")),
    Sketcher.Constraint("DistanceX", -1, 1, 36, 3, Q("64.5175 mm")),
    Sketcher.Constraint("DistanceX", -1, 1, 37, 3, Q("56.3462 mm")),
    Sketcher.Constraint("DistanceX", -1, 1, 47, 3, Q("20.9157 mm")),
    Sketcher.Constraint("DistanceY", -1, 1, 47, 3, Q("74.2574 mm")),
    Sketcher.Constraint("DistanceY", -1, 1, 51, 3, Q("62.5905 mm")),
    Sketcher.Constraint("DistanceY", -1, 1, 55, 3, Q("56.3462 mm")),
    Sketcher.Constraint("DistanceX", -1, 1, 8, 2, Q("121.3675 mm")),
    Sketcher.Constraint("DistanceY", 12, 2, -1, 1, Q("90.3675 mm")),
    Sketcher.Constraint("DistanceX", -1, 1, 23, 2, Q("56.9575 mm")),
    Sketcher.Constraint("DistanceY", 28, 2, -1, 1, Q("50.4297 mm")),
    Sketcher.Constraint("DistanceX", -1, 1, 38, 2, Q("50.4297 mm")),
])
sketch1.setExpression("Constraints[185]", "Params.sketch1_diameter")
sketch1.setExpression("Constraints[186]", "Params.sketch1_width")
sketch1.setExpression("Constraints[187]", "Params.sketch1_width2")
sketch1.setExpression("Constraints[188]", "Params.sketch1_radius")
sketch1.setExpression("Constraints[189]", "Params.sketch1_length")
pad1 = body.newObject("PartDesign::Pad", "Pad")
pad1.Profile = sketch1
pad1.setExpression("Length", "Params.pad1_length")
pad1.Reversed = True

doc.recompute()
